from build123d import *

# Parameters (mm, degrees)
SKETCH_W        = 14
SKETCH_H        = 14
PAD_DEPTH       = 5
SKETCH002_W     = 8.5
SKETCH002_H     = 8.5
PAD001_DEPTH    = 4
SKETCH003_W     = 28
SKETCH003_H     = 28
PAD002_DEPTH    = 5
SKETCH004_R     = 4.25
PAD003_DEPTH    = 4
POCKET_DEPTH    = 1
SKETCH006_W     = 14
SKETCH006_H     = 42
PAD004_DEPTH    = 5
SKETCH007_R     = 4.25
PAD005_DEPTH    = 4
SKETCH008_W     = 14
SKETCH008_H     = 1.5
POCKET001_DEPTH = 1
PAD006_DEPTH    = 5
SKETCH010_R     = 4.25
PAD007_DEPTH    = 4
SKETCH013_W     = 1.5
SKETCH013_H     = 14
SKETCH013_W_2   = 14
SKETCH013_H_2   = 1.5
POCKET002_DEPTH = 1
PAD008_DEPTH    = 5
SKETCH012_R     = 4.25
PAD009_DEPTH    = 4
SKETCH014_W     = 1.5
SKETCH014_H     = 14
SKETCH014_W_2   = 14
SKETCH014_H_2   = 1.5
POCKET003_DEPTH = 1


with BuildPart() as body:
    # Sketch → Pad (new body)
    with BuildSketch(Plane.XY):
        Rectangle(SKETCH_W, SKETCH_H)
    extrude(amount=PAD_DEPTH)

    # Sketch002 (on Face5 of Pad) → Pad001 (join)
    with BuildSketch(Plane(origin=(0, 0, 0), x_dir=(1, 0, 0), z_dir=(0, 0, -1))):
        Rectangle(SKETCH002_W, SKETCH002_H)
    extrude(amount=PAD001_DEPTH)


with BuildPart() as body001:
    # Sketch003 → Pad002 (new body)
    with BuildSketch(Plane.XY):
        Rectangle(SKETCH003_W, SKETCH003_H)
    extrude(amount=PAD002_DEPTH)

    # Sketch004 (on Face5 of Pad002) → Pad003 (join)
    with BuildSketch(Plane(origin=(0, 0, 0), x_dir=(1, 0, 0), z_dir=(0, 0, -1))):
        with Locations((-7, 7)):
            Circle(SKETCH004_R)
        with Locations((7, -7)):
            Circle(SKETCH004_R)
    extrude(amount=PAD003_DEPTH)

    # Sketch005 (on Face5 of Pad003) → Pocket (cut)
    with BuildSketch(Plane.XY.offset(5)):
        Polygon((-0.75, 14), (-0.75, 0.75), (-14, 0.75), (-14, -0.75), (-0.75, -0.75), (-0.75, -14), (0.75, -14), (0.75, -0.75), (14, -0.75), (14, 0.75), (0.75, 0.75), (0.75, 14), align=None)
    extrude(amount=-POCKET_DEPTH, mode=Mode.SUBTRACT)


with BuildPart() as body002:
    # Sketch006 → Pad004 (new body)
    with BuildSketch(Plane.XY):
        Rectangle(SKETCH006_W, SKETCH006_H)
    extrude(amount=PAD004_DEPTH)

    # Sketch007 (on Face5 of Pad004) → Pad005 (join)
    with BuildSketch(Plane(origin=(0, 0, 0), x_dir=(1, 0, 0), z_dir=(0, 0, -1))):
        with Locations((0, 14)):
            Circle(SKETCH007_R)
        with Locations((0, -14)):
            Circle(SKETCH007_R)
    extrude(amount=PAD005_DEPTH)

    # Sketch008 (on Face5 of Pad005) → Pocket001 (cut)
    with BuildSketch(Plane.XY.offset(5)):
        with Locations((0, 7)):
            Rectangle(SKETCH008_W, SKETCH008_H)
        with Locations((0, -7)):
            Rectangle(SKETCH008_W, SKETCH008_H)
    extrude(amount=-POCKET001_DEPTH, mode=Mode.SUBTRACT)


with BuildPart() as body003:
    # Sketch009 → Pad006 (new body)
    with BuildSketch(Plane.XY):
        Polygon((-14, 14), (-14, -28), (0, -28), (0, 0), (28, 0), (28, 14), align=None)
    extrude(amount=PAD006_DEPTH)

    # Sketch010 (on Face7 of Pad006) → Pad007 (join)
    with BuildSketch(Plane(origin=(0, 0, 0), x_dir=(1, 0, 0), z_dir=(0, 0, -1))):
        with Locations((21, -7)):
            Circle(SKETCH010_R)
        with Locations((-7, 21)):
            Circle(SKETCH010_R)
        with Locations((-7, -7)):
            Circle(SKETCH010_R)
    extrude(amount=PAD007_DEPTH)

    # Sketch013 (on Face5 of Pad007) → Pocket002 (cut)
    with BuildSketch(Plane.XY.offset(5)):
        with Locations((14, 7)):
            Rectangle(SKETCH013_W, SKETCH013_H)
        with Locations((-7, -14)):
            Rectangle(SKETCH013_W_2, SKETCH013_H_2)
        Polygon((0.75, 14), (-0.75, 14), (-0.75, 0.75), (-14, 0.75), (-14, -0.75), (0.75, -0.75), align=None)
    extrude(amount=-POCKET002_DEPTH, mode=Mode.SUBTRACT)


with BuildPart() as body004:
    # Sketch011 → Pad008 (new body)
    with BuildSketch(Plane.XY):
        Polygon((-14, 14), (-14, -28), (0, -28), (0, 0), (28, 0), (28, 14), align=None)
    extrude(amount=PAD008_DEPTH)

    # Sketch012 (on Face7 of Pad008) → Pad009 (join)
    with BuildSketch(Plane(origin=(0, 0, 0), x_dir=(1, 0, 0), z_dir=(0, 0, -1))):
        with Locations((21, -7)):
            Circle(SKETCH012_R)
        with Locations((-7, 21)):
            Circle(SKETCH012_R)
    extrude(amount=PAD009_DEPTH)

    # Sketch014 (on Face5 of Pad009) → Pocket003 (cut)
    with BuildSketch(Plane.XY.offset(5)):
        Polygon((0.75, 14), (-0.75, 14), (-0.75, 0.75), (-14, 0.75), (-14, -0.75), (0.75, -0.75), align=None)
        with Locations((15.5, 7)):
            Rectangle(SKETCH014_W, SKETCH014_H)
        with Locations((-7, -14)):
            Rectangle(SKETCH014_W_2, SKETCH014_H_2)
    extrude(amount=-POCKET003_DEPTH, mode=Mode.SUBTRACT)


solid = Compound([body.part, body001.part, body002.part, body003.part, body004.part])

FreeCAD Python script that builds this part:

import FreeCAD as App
import Part
import Sketcher
Q = App.Units.Quantity


def add_polygon(sketch, points):
    """Adds a closed chain of lines whose ends are joined by coincident constraints."""
    first, n = sketch.GeometryCount, len(points)
    for a, b in zip(points, points[1:] + points[:1]):
        sketch.addGeometry(Part.LineSegment(App.Vector(*a, 0), App.Vector(*b, 0)), False)
    for i in range(n):
        sketch.addConstraint(Sketcher.Constraint("Coincident", first + i, 2, first + (i + 1) % n, 1))

doc = App.newDocument("Part")
params = doc.addObject("Spreadsheet::Sheet", "Params")
for row, (alias, value) in enumerate([
    ("sketch1_width", "14 mm"),
    ("pad1_length", "5 mm"),
    ("sketch2_width", "8.5 mm"),
    ("pad2_length", "4 mm"),
    ("sketch3_width", "28 mm"),
    ("pad3_length", "5 mm"),
    ("sketch4_diameter", "8.5 mm"),
    ("pad4_length", "4 mm"),
    ("sketch5_width", "1.5 mm"),
    ("pocket1_length", "1 mm"),
    ("sketch6_width", "14 mm"),
    ("sketch6_height", "42 mm"),
    ("pad5_length", "5 mm"),
    ("sketch7_diameter", "8.5 mm"),
    ("pad6_length", "4 mm"),
    ("sketch8_width", "14 mm"),
    ("sketch8_height", "1.5 mm"),
    ("pocket2_length", "1 mm"),
    ("sketch9_width", "14 mm"),
    ("sketch9_width2", "28 mm"),
    ("pad7_length", "5 mm"),
    ("sketch10_diameter", "8.5 mm"),
    ("pad8_length", "4 mm"),
    ("sketch11_width", "14 mm"),
    ("sketch11_width2", "1.5 mm"),
    ("pocket3_length", "1 mm"),
    ("sketch12_width", "14 mm"),
    ("sketch12_width2", "28 mm"),
    ("pad9_length", "5 mm"),
    ("sketch13_diameter", "8.5 mm"),
    ("pad10_length", "4 mm"),
    ("sketch14_width", "14 mm"),
    ("sketch14_width2", "1.5 mm"),
    ("pocket4_length", "1 mm"),
], start=1):
    params.set(f"A{row}", alias)
    params.set(f"B{row}", "=" + value)
    params.setAlias(f"B{row}", alias)

body = doc.addObject("PartDesign::Body", "Body")

# Sketch on XY plane
sketch1 = body.newObject("Sketcher::SketchObject", "Sketch")
sketch1.AttachmentSupport = (doc.getObject("XY_Plane"), [""])
sketch1.MapMode = "FlatFace"
add_polygon(sketch1, [(-7, 7), (-7, -7), (7, -7), (7, 7)])  # lines 0-3
sketch1.addConstraint([
    Sketcher.Constraint("Vertical", 0),
    Sketcher.Constraint("Horizontal", 1),
    Sketcher.Constraint("Vertical", 2),
    Sketcher.Constraint("Horizontal", 3),
    Sketcher.Constraint("Symmetric", 0, 2, 2, 2, -1, 1),
    Sketcher.Constraint("Equal", 3, 0),
    Sketcher.Constraint("DistanceX", 1, 1, 1, 2, Q("14 mm")),
])
sketch1.setExpression("Constraints[10]", "Params.sketch1_width")
pad1 = body.newObject("PartDesign::Pad", "Pad")
pad1.Profile = sketch1
pad1.setExpression("Length", "Params.pad1_length")

# Sketch on XY plane
sketch2 = body.newObject("Sketcher::SketchObject", "Sketch001")
sketch2.AttachmentSupport = (doc.getObject("XY_Plane"), [""])
sketch2.MapMode = "FlatFace"
add_polygon(sketch2, [(-4, -4), (-4, 4), (4, 4), (4, -4)])  # lines 0-3
sketch2.addConstraint([
    Sketcher.Constraint("Vertical", 0),
    Sketcher.Constraint("Horizontal", 1),
    Sketcher.Constraint("Vertical", 2),
    Sketcher.Constraint("Horizontal", 3),
    Sketcher.Constraint("Symmetric", 0, 2, 2, 2, -1, 1),
    Sketcher.Constraint("Equal", 3, 0),
    Sketcher.Constraint("DistanceX", 1, 1, 1, 2, Q("8.5 mm")),
])
sketch2.setExpression("Constraints[10]", "Params.sketch2_width")
pad2 = body.newObject("PartDesign::Pad", "Pad001")
pad2.Profile = sketch2
pad2.setExpression("Length", "Params.pad2_length")
pad2.Reversed = True
body2 = doc.addObject("PartDesign::Body", "Body001")

# Sketch on XY plane
sketch3 = body2.newObject("Sketcher::SketchObject", "Sketch002")
sketch3.AttachmentSupport = (doc.getObject("XY_Plane001"), [""])
sketch3.MapMode = "FlatFace"
add_polygon(sketch3, [(-14, 14), (-14, -14), (14, -14), (14, 14)])  # lines 0-3
sketch3.addConstraint([
    Sketcher.Constraint("Vertical", 0),
    Sketcher.Constraint("Horizontal", 1),
    Sketcher.Constraint("Vertical", 2),
    Sketcher.Constraint("Horizontal", 3),
    Sketcher.Constraint("Symmetric", 0, 2, 2, 2, -1, 1),
    Sketcher.Constraint("Equal", 3, 0),
    Sketcher.Constraint("DistanceX", 1, 1, 1, 2, Q("28 mm")),
])
sketch3.setExpression("Constraints[10]", "Params.sketch3_width")
pad3 = body2.newObject("PartDesign::Pad", "Pad002")
pad3.Profile = sketch3
pad3.setExpression("Length", "Params.pad3_length")

# Sketch on XY plane
sketch4 = body2.newObject("Sketcher::SketchObject", "Sketch003")
sketch4.AttachmentSupport = (doc.getObject("XY_Plane001"), [""])
sketch4.MapMode = "FlatFace"
sketch4.addGeometry([
    Part.Circle(App.Vector(-7, -7, 0), App.Vector(0, 0, 1), 4.2),
    Part.Circle(App.Vector(7, 7, 0), App.Vector(0, 0, 1), 4.2),
], False)
sketch4.addConstraint([
    Sketcher.Constraint("Equal", 0, 1),
    Sketcher.Constraint("Symmetric", 0, 3, 1, 3, -1, 1),
    Sketcher.Constraint("Diameter", 0, Q("8.5 mm")),
    Sketcher.Constraint("DistanceX", 0, 3, -1, 1, Q("7 mm")),
    Sketcher.Constraint("DistanceY", 0, 3, -1, 1, Q("7 mm")),
])
sketch4.setExpression("Constraints[2]", "Params.sketch4_diameter")
pad4 = body2.newObject("PartDesign::Pad", "Pad003")
pad4.Profile = sketch4
pad4.setExpression("Length", "Params.pad4_length")
pad4.Reversed = True

# Sketch on XY plane
sketch5 = body2.newObject("Sketcher::SketchObject", "Sketch004")
sketch5.AttachmentSupport = (doc.getObject("XY_Plane001"), [""])
sketch5.MapMode = "FlatFace"
sketch5.AttachmentOffset = App.Placement(App.Vector(0, 0, 5), App.Rotation())
add_polygon(sketch5, [(-0.8, 14), (-0.8, 0.8), (-14, 0.8), (-14, -0.8), (-0.8, -0.8), (-0.8, -14), (0.8, -14), (0.8, -0.8), (14, -0.8), (14, 0.8), (0.8, 0.8), (0.8, 14)])  # lines 0-11
sketch5.addConstraint([
    Sketcher.Constraint("Vertical", 0),
    Sketcher.Constraint("Horizontal", 1),
    Sketcher.Constraint("Vertical", 2),
    Sketcher.Constraint("Horizontal", 3),
    Sketcher.Constraint("Vertical", 4),
    Sketcher.Constraint("Horizontal", 5),
    Sketcher.Constraint("Vertical", 6),
    Sketcher.Constraint("Horizontal", 7),
    Sketcher.Constraint("Vertical", 8),
    Sketcher.Constraint("Horizontal", 9),
    Sketcher.Constraint("Vertical", 10),
    Sketcher.Constraint("Horizontal", 11),
    Sketcher.Constraint("Symmetric", 0, 2, 6, 2, -1, 1),
    Sketcher.Constraint("Symmetric", 2, 2, 8, 2, -1, 1),
    Sketcher.Constraint("Symmetric", 4, 2, 10, 2, -1, 1),
    Sketcher.Constraint("Symmetric", 3, 2, 6, 2, -2),
    Sketcher.Constraint("Equal", 9, 0),
    Sketcher.Constraint("Equal", 11, 2),
    Sketcher.Constraint("DistanceX", 5, 1, 5, 2, Q("1.5 mm")),
    Sketcher.Constraint("DistanceX", 1, 2, -1, 1, Q("14 mm")),
])
sketch5.setExpression("Constraints[30]", "Params.sketch5_width")
pocket1 = body2.newObject("PartDesign::Pocket", "Pocket")
pocket1.Profile = sketch5
pocket1.setExpression("Length", "Params.pocket1_length")
body3 = doc.addObject("PartDesign::Body", "Body002")

# Sketch on XY plane
sketch6 = body3.newObject("Sketcher::SketchObject", "Sketch005")
sketch6.AttachmentSupport = (doc.getObject("XY_Plane002"), [""])
sketch6.MapMode = "FlatFace"
add_polygon(sketch6, [(-7, 21), (-7, -21), (7, -21), (7, 21)])  # lines 0-3
sketch6.addConstraint([
    Sketcher.Constraint("Vertical", 0),
    Sketcher.Constraint("Horizontal", 1),
    Sketcher.Constraint("Vertical", 2),
    Sketcher.Constraint("Horizontal", 3),
    Sketcher.Constraint("Symmetric", 0, 2, 2, 2, -1, 1),
    Sketcher.Constraint("DistanceX", 1, 1, 1, 2, Q("14 mm")),
    Sketcher.Constraint("DistanceY", 0, 2, 0, 1, Q("42 mm")),
])
sketch6.setExpression("Constraints[9]", "Params.sketch6_width")
sketch6.setExpression("Constraints[10]", "Params.sketch6_height")
pad5 = body3.newObject("PartDesign::Pad", "Pad004")
pad5.Profile = sketch6
pad5.setExpression("Length", "Params.pad5_length")

# Sketch on XY plane
sketch7 = body3.newObject("Sketcher::SketchObject", "Sketch006")
sketch7.AttachmentSupport = (doc.getObject("XY_Plane002"), [""])
sketch7.MapMode = "FlatFace"
sketch7.addGeometry([
    Part.Circle(App.Vector(0, -14, 0), App.Vector(0, 0, 1), 4.2),
    Part.Circle(App.Vector(0, 14, 0), App.Vector(0, 0, 1), 4.2),
], False)
sketch7.addConstraint([
    Sketcher.Constraint("Equal", 0, 1),
    Sketcher.Constraint("Symmetric", 0, 3, 1, 3, -1, 1),
    Sketcher.Constraint("PointOnObject", 0, 3, -2),
    Sketcher.Constraint("Diameter", 0, Q("8.5 mm")),
    Sketcher.Constraint("DistanceY", 0, 3, -1, 1, Q("14 mm")),
])
sketch7.setExpression("Constraints[3]", "Params.sketch7_diameter")
pad6 = body3.newObject("PartDesign::Pad", "Pad005")
pad6.Profile = sketch7
pad6.setExpression("Length", "Params.pad6_length")
pad6.Reversed = True

# Sketch on XY plane
sketch8 = body3.newObject("Sketcher::SketchObject", "Sketch007")
sketch8.AttachmentSupport = (doc.getObject("XY_Plane002"), [""])
sketch8.MapMode = "FlatFace"
sketch8.AttachmentOffset = App.Placement(App.Vector(0, 0, 5), App.Rotation())
add_polygon(sketch8, [(-7, 7.8), (-7, 6.2), (7, 6.2), (7, 7.8)])  # lines 0-3
add_polygon(sketch8, [(-7, -6.2), (-7, -7.8), (7, -7.8), (7, -6.2)])  # lines 4-7
sketch8.addConstraint([
    Sketcher.Constraint("Vertical", 0),
    Sketcher.Constraint("Horizontal", 1),
    Sketcher.Constraint("Vertical", 2),
    Sketcher.Constraint("Horizontal", 3),
    Sketcher.Constraint("Vertical", 4),
    Sketcher.Constraint("Horizontal", 5),
    Sketcher.Constraint("Vertical", 6),
    Sketcher.Constraint("Horizontal", 7),
    Sketcher.Constraint("Symmetric", 2, 2, 4, 2, -1, 1),
    Sketcher.Constraint("Symmetric", 0, 2, 6, 2, -1, 1),
    Sketcher.Constraint("Vertical", 3, 2, 4, 2),
    Sketcher.Constraint("DistanceX", 1, 1, 1, 2, Q("14 mm")),
    Sketcher.Constraint("DistanceY", 0, 2, 0, 1, Q("1.5 mm")),
    Sketcher.Constraint("DistanceY", 4, 2, 0, 2, Q("14 mm")),
])
sketch8.setExpression("Constraints[19]", "Params.sketch8_width")
sketch8.setExpression("Constraints[20]", "Params.sketch8_height")
pocket2 = body3.newObject("PartDesign::Pocket", "Pocket001")
pocket2.Profile = sketch8
pocket2.setExpression("Length", "Params.pocket2_length")
body4 = doc.addObject("PartDesign::Body", "Body003")

# Sketch on XY plane
sketch9 = body4.newObject("Sketcher::SketchObject", "Sketch008")
sketch9.AttachmentSupport = (doc.getObject("XY_Plane003"), [""])
sketch9.MapMode = "FlatFace"
add_polygon(sketch9, [(-14, 14), (-14, -28), (0, -28), (0, 0), (28, 0), (28, 14)])  # lines 0-5
sketch9.addConstraint([
    Sketcher.Constraint("Vertical", 0),
    Sketcher.Constraint("Horizontal", 1),
    Sketcher.Constraint("Vertical", 2),
    Sketcher.Constraint("Horizontal", 3),
    Sketcher.Constraint("Vertical", 4),
    Sketcher.Constraint("Horizontal", 5),
    Sketcher.Constraint("Coincident", 2, 2, -1, 1),
    Sketcher.Constraint("Equal", 5, 0),
    Sketcher.Constraint("Equal", 3, 2),
    Sketcher.Constraint("DistanceX", 1, 1, 1, 2, Q("14 mm")),
    Sketcher.Constraint("DistanceX", 3, 1, 3, 2, Q("28 mm")),
])
sketch9.setExpression("Constraints[15]", "Params.sketch9_width")
sketch9.setExpression("Constraints[16]", "Params.sketch9_width2")
pad7 = body4.newObject("PartDesign::Pad", "Pad006")
pad7.Profile = sketch9
pad7.setExpression("Length", "Params.pad7_length")

# Sketch on XY plane
sketch10 = body4.newObject("Sketcher::SketchObject", "Sketch009")
sketch10.AttachmentSupport = (doc.getObject("XY_Plane003"), [""])
sketch10.MapMode = "FlatFace"
sketch10.addGeometry([
    Part.Circle(App.Vector(21, 7, 0), App.Vector(0, 0, 1), 4.2),
    Part.Circle(App.Vector(-7, -21, 0), App.Vector(0, 0, 1), 4.2),
    Part.Circle(App.Vector(-7, 7, 0), App.Vector(0, 0, 1), 4.2),
], False)
sketch10.addConstraint([
    Sketcher.Constraint("Equal", 0, 1),
    Sketcher.Constraint("Equal", 1, 2),
    Sketcher.Constraint("Horizontal", 0, 3, 2, 3),
    Sketcher.Constraint("Vertical", 1, 3, 2, 3),
    Sketcher.Constraint("Diameter", 0, Q("8.5 mm")),
    Sketcher.Constraint("DistanceX", -1, 1, 0, 3, Q("21 mm")),
    Sketcher.Constraint("DistanceY", -1, 1, 0, 3, Q("7 mm")),
    Sketcher.Constraint("DistanceX", 1, 3, -1, 1, Q("7 mm")),
    Sketcher.Constraint("DistanceY", 1, 3, -1, 1, Q("21 mm")),
])
sketch10.setExpression("Constraints[4]", "Params.sketch10_diameter")
pad8 = body4.newObject("PartDesign::Pad", "Pad007")
pad8.Profile = sketch10
pad8.setExpression("Length", "Params.pad8_length")
pad8.Reversed = True

# Sketch on XY plane
sketch11 = body4.newObject("Sketcher::SketchObject", "Sketch010")
sketch11.AttachmentSupport = (doc.getObject("XY_Plane003"), [""])
sketch11.MapMode = "FlatFace"
sketch11.AttachmentOffset = App.Placement(App.Vector(0, 0, 5), App.Rotation())
add_polygon(sketch11, [(13.2, 14), (13.2, 0), (14.8, 0), (14.8, 14)])  # lines 0-3
add_polygon(sketch11, [(-14, -13.2), (-14, -14.8), (0, -14.8), (0, -13.2)])  # lines 4-7
add_polygon(sketch11, [(0.8, 14), (-0.8, 14), (-0.8, 0.8), (-14, 0.8), (-14, -0.8), (0.8, -0.8)])  # lines 8-13
sketch11.addConstraint([
    Sketcher.Constraint("Vertical", 0),
    Sketcher.Constraint("Horizontal", 1),
    Sketcher.Constraint("Vertical", 2),
    Sketcher.Constraint("Horizontal", 3),
    Sketcher.Constraint("Vertical", 4),
    Sketcher.Constraint("Horizontal", 5),
    Sketcher.Constraint("Vertical", 6),
    Sketcher.Constraint("Horizontal", 7),
    Sketcher.Constraint("Horizontal", 8),
    Sketcher.Constraint("Vertical", 9),
    Sketcher.Constraint("Horizontal", 10),
    Sketcher.Constraint("Vertical", 11),
    Sketcher.Constraint("Horizontal", 12),
    Sketcher.Constraint("Vertical", 13),
    Sketcher.Constraint("Symmetric", 9, 2, 12, 2, -1, 1),
    Sketcher.Constraint("PointOnObject", 0, 2, -1),
    Sketcher.Constraint("PointOnObject", 5, 2, -2),
    Sketcher.Constraint("Horizontal", 3, 2, 8, 2),
    Sketcher.Constraint("Vertical", 7, 2, 10, 2),
    Sketcher.Constraint("Equal", 3, 8),
    Sketcher.Constraint("Equal", 7, 0),
    Sketcher.Constraint("Equal", 8, 4),
    Sketcher.Constraint("Equal", 10, 9),
    Sketcher.Constraint("DistanceX", 5, 1, 5, 2, Q("14 mm")),
    Sketcher.Constraint("DistanceX", 1, 1, 1, 2, Q("1.5 mm")),
    Sketcher.Constraint("DistanceX", 8, 2, 3, 2, Q("14 mm")),
    Sketcher.Constraint("DistanceY", 6, 2, 9, 2, Q("14 mm")),
])
sketch11.setExpression("Constraints[37]", "Params.sketch11_width")
sketch11.setExpression("Constraints[38]", "Params.sketch11_width2")
pocket3 = body4.newObject("PartDesign::Pocket", "Pocket002")
pocket3.Profile = sketch11
pocket3.setExpression("Length", "Params.pocket3_length")
body5 = doc.addObject("PartDesign::Body", "Body004")

# Sketch on XY plane
sketch12 = body5.newObject("Sketcher::SketchObject", "Sketch011")
sketch12.AttachmentSupport = (doc.getObject("XY_Plane004"), [""])
sketch12.MapMode = "FlatFace"
add_polygon(sketch12, [(-14, 14), (-14, -28), (0, -28), (0, 0), (28, 0), (28, 14)])  # lines 0-5
sketch12.addConstraint([
    Sketcher.Constraint("Vertical", 0),
    Sketcher.Constraint("Horizontal", 1),
    Sketcher.Constraint("Vertical", 2),
    Sketcher.Constraint("Horizontal", 3),
    Sketcher.Constraint("Vertical", 4),
    Sketcher.Constraint("Horizontal", 5),
    Sketcher.Constraint("Coincident", 2, 2, -1, 1),
    Sketcher.Constraint("Equal", 5, 0),
    Sketcher.Constraint("Equal", 3, 2),
    Sketcher.Constraint("DistanceX", 1, 1, 1, 2, Q("14 mm")),
    Sketcher.Constraint("DistanceX", 3, 1, 3, 2, Q("28 mm")),
])
sketch12.setExpression("Constraints[15]", "Params.sketch12_width")
sketch12.setExpression("Constraints[16]", "Params.sketch12_width2")
pad9 = body5.newObject("PartDesign::Pad", "Pad008")
pad9.Profile = sketch12
pad9.setExpression("Length", "Params.pad9_length")

# Sketch on XY plane
sketch13 = body5.newObject("Sketcher::SketchObject", "Sketch012")
sketch13.AttachmentSupport = (doc.getObject("XY_Plane004"), [""])
sketch13.MapMode = "FlatFace"
sketch13.addGeometry([
    Part.Circle(App.Vector(21, 7, 0), App.Vector(0, 0, 1), 4.2),
    Part.Circle(App.Vector(-7, -21, 0), App.Vector(0, 0, 1), 4.2),
], False)
sketch13.addConstraint([
    Sketcher.Constraint("Equal", 0, 1),
    Sketcher.Constraint("Diameter", 0, Q("8.5 mm")),
    Sketcher.Constraint("DistanceX", -1, 1, 0, 3, Q("21 mm")),
    Sketcher.Constraint("DistanceY", -1, 1, 0, 3, Q("7 mm")),
    Sketcher.Constraint("DistanceX", 1, 3, -1, 1, Q("7 mm")),
    Sketcher.Constraint("DistanceY", 1, 3, -1, 1, Q("21 mm")),
])
sketch13.setExpression("Constraints[1]", "Params.sketch13_diameter")
pad10 = body5.newObject("PartDesign::Pad", "Pad009")
pad10.Profile = sketch13
pad10.setExpression("Length", "Params.pad10_length")
pad10.Reversed = True

# Sketch on XY plane
sketch14 = body5.newObject("Sketcher::SketchObject", "Sketch013")
sketch14.AttachmentSupport = (doc.getObject("XY_Plane004"), [""])
sketch14.MapMode = "FlatFace"
sketch14.AttachmentOffset = App.Placement(App.Vector(0, 0, 5), App.Rotation())
add_polygon(sketch14, [(0.8, 14), (-0.8, 14), (-0.8, 0.8), (-14, 0.8), (-14, -0.8), (0.8, -0.8)])  # lines 0-5
add_polygon(sketch14, [(14.8, 14), (14.8, 0), (16.2, 0), (16.2, 14)])  # lines 6-9
add_polygon(sketch14, [(-14, -13.2), (-14, -14.8), (0, -14.8), (0, -13.2)])  # lines 10-13
sketch14.addConstraint([
    Sketcher.Constraint("Horizontal", 0),
    Sketcher.Constraint("Vertical", 1),
    Sketcher.Constraint("Horizontal", 2),
    Sketcher.Constraint("Vertical", 3),
    Sketcher.Constraint("Horizontal", 4),
    Sketcher.Constraint("Vertical", 5),
    Sketcher.Constraint("Vertical", 6),
    Sketcher.Constraint("Horizontal", 7),
    Sketcher.Constraint("Vertical", 8),
    Sketcher.Constraint("Horizontal", 9),
    Sketcher.Constraint("Vertical", 10),
    Sketcher.Constraint("Horizontal", 11),
    Sketcher.Constraint("Vertical", 12),
    Sketcher.Constraint("Horizontal", 13),
    Sketcher.Constraint("Symmetric", 1, 2, 4, 2, -1, 1),
    Sketcher.Constraint("PointOnObject", 6, 2, -1),
    Sketcher.Constraint("PointOnObject", 11, 2, -2),
    Sketcher.Constraint("Horizontal", 5, 2, 8, 2),
    Sketcher.Constraint("Vertical", 3, 2, 10, 2),
    Sketcher.Constraint("Equal", 0, 7),
    Sketcher.Constraint("Equal", 2, 1),
    Sketcher.Constraint("Equal", 9, 3),
    Sketcher.Constraint("Equal", 3, 10),
    Sketcher.Constraint("DistanceX", 11, 1, 11, 2, Q("14 mm")),
    Sketcher.Constraint("DistanceX", 0, 2, 0, 1, Q("1.5 mm")),
    Sketcher.Constraint("DistanceX", 4, 2, 6, 2, Q("14 mm")),
    Sketcher.Constraint("DistanceY", 10, 2, 3, 2, Q("14 mm")),
])
sketch14.setExpression("Constraints[37]", "Params.sketch14_width")
sketch14.setExpression("Constraints[38]", "Params.sketch14_width2")
pocket4 = body5.newObject("PartDesign::Pocket", "Pocket003")
pocket4.Profile = sketch14
pocket4.setExpression("Length", "Params.pocket4_length")

doc.recompute()
